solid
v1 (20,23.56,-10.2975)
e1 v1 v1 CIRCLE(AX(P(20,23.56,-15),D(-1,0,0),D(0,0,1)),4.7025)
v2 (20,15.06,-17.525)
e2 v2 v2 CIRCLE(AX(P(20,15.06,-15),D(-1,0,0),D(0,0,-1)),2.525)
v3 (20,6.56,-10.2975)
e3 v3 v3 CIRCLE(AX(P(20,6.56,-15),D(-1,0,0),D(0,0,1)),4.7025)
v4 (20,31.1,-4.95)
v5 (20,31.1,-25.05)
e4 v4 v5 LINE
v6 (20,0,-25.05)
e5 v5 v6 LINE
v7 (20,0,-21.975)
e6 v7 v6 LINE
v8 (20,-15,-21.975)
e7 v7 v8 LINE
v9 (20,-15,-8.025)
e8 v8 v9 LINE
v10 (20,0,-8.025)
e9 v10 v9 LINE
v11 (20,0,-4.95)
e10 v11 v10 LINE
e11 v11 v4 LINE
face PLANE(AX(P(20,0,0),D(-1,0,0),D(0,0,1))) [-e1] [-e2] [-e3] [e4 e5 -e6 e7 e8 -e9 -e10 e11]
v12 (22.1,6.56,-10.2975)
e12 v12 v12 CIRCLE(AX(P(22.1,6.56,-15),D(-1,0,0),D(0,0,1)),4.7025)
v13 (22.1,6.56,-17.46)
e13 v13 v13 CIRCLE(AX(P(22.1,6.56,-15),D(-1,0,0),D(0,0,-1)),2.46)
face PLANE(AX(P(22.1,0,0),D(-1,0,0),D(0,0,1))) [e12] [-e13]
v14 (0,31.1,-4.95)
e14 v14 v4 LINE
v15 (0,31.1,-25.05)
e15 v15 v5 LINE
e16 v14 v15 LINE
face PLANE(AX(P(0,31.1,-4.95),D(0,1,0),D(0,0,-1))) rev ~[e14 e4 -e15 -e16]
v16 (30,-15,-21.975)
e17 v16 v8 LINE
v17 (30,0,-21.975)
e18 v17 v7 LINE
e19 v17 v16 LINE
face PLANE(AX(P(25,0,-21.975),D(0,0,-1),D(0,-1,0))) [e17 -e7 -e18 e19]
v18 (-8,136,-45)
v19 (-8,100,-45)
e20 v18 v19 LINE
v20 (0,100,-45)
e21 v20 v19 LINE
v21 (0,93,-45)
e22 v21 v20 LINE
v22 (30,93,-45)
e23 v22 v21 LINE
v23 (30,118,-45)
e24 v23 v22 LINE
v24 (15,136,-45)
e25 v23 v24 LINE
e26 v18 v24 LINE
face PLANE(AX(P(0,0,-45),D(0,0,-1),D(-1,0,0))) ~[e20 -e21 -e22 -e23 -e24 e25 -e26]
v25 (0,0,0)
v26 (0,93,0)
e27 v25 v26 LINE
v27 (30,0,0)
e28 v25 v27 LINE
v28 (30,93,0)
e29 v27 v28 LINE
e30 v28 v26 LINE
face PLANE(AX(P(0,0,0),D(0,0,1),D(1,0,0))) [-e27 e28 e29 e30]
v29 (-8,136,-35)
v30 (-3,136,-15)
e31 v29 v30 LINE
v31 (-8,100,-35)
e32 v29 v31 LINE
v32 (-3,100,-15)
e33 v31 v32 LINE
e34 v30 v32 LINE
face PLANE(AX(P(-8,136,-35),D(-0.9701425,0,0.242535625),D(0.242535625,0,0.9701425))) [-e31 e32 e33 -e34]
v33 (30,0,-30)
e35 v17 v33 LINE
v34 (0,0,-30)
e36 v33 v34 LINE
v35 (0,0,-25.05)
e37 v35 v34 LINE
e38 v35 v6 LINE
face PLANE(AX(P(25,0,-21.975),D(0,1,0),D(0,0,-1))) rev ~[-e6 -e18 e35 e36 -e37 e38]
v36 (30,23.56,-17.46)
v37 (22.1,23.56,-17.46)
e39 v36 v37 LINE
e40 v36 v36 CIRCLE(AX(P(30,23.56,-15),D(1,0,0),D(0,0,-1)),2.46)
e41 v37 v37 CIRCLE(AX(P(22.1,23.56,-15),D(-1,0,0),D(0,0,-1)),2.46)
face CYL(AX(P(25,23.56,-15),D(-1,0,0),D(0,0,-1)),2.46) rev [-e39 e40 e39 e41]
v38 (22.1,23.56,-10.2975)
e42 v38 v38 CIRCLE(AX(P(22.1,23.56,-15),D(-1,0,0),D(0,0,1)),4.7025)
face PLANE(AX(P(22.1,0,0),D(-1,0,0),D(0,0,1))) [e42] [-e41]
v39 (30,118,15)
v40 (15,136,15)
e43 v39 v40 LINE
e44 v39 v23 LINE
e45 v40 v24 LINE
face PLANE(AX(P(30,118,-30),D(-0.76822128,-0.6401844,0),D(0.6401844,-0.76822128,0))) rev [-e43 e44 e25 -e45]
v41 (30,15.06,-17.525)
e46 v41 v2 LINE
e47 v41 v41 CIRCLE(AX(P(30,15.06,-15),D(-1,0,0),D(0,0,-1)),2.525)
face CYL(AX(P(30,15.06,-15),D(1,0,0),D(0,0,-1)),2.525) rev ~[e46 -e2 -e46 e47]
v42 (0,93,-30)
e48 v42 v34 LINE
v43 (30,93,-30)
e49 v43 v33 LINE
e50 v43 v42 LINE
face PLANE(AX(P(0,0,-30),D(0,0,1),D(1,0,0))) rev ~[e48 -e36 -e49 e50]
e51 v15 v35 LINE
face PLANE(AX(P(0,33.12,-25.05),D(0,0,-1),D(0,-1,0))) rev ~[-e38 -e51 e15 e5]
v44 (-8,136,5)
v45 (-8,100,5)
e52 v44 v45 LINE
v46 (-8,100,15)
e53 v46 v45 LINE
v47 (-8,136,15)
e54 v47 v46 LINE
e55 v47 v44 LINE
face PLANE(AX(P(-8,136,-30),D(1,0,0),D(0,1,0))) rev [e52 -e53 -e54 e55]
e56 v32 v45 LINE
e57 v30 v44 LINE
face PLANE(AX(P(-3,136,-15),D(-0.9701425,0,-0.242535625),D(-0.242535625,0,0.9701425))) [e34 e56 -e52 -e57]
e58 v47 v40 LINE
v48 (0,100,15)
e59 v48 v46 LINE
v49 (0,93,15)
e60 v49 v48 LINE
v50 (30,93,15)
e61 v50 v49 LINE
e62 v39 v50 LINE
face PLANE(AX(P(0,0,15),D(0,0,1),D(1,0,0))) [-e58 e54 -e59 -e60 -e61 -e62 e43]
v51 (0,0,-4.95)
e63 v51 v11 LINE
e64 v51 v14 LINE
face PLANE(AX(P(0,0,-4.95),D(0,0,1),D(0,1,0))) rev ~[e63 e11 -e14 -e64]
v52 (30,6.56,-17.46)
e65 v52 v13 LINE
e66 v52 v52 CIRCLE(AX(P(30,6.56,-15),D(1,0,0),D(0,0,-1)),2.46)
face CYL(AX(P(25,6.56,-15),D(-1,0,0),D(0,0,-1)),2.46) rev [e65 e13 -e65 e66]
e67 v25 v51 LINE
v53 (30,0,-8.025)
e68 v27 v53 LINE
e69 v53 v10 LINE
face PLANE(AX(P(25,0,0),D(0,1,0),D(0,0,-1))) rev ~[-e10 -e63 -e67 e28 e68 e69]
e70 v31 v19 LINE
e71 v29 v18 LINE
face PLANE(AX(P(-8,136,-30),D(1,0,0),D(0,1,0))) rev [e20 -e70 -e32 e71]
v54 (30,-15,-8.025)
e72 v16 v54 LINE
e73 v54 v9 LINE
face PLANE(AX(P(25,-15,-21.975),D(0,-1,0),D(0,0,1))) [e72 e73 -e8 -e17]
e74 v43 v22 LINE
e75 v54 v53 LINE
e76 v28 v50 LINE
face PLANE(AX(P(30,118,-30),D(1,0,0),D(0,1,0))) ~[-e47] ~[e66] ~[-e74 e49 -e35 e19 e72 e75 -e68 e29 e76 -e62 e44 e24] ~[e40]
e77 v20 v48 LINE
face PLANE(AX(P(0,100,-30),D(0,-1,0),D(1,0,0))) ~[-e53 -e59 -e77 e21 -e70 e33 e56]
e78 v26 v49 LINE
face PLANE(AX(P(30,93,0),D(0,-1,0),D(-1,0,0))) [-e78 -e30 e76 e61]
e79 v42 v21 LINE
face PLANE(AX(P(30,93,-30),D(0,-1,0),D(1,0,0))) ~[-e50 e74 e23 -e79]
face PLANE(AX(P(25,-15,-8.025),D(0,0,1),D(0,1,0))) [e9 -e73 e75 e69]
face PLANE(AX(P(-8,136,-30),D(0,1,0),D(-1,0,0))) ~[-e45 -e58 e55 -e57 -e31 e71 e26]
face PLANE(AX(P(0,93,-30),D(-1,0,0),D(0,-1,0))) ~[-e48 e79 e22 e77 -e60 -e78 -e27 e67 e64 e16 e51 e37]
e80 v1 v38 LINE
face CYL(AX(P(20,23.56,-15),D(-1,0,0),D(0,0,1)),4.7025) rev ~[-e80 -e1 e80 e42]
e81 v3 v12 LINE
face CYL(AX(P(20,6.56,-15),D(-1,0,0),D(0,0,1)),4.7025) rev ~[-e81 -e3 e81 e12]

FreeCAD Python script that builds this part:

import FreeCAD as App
import Part
import Sketcher

V = App.Vector


def add_polygon(sketch, points):
    """Adds a closed chain of lines whose ends are joined by coincident constraints."""
    first, n = sketch.GeometryCount, len(points)
    for a, b in zip(points, points[1:] + points[:1]):
        sketch.addGeometry(Part.LineSegment(App.Vector(*a, 0), App.Vector(*b, 0)), False)
    for i in range(n):
        sketch.addConstraint(Sketcher.Constraint("Coincident", first + i, 2, first + (i + 1) % n, 1))

doc = App.newDocument("Part")
body = doc.addObject("PartDesign::Body", "Body")

# Sketch on XY plane
sketch1 = body.newObject("Sketcher::SketchObject", "Sketch")
sketch1.AttachmentSupport = (doc.getObject("XY_Plane"), [""])
sketch1.MapMode = "FlatFace"
add_polygon(sketch1, [(0, 40), (0, 0), (25, 0), (25, 40)])  # lines 0-3
sketch1.addConstraint([
    Sketcher.Constraint("Vertical", 0),
    Sketcher.Constraint("Horizontal", 1),
    Sketcher.Constraint("Vertical", 2),
    Sketcher.Constraint("Horizontal", 3),
    Sketcher.Constraint("Coincident", 0, 2, -1, 1),
    Sketcher.Constraint("DistanceX", 1, 1, 1, 2, 25.0),
    Sketcher.Constraint("DistanceY", 0, 2, 0, 1, 40.0),
])
pad1 = body.newObject("PartDesign::Pad", "Pad")
pad1.Profile = sketch1
pad1.Length = 30
pad1.Reversed = True

# Sketch on YZ plane
sketch2 = body.newObject("Sketcher::SketchObject", "Sketch001")
sketch2.AttachmentSupport = (doc.getObject("YZ_Plane"), [""])
sketch2.MapMode = "FlatFace"
sketch2.AttachmentOffset = App.Placement(V(0, 0, 25), App.Rotation())
sketch2.addGeometry(Part.Circle(V(6.56, -15, 0), V(0, 0, 1), 2.46), False)
sketch2.addConstraint([
    Sketcher.Constraint("Diameter", 0, 4.92),
    Sketcher.Constraint("DistanceY", 0, 3, -1, 1, 15.0),
    Sketcher.Constraint("DistanceX", -1, 1, 0, 3, 6.56),
])
pocket1 = body.newObject("PartDesign::Pocket", "Pocket")
pocket1.Profile = sketch2
pocket1.Length = 30

# Sketch on YZ plane
sketch3 = body.newObject("Sketcher::SketchObject", "Sketch002")
sketch3.AttachmentSupport = (doc.getObject("YZ_Plane"), [""])
sketch3.MapMode = "FlatFace"
add_polygon(sketch3, [(0, -25.05), (0, -4.95), (33.12, -4.95), (33.12, -25.05)])  # lines 0-3
sketch3.addConstraint([
    Sketcher.Constraint("Vertical", 0),
    Sketcher.Constraint("Horizontal", 1),
    Sketcher.Constraint("Vertical", 2),
    Sketcher.Constraint("Horizontal", 3),
    Sketcher.Constraint("PointOnObject", 0, 2, -2),
    Sketcher.Constraint("DistanceY", 0, 1, 0, 2, 20.1),
    Sketcher.Constraint("DistanceX", 1, 1, 1, 2, 33.12),
    Sketcher.Constraint("DistanceY", 0, 2, -1, 1, 4.95),
])
pocket2 = body.newObject("PartDesign::Pocket", "Pocket001")
pocket2.Profile = sketch3
pocket2.Length = 20
pocket2.Reversed = True

# Sketch on XZ plane
sketch4 = body.newObject("Sketcher::SketchObject", "Sketch003")
sketch4.AttachmentSupport = (doc.getObject("XZ_Plane"), [""])
sketch4.MapMode = "FlatFace"
add_polygon(sketch4, [(25, -8.025), (20, -8.025), (20, -21.975), (25, -21.975)])  # lines 0-3
sketch4.addConstraint([
    Sketcher.Constraint("Horizontal", 0),
    Sketcher.Constraint("Vertical", 1),
    Sketcher.Constraint("Horizontal", 2),
    Sketcher.Constraint("Vertical", 3),
    Sketcher.Constraint("DistanceY", 1, 2, 1, 1, 13.95),
    Sketcher.Constraint("DistanceX", 0, 2, 0, 1, 5.0),
    Sketcher.Constraint("DistanceX", -1, 1, 0, 2, 20.0),
    Sketcher.Constraint("DistanceY", 0, 2, -1, 1, 8.025),
])
pad2 = body.newObject("PartDesign::Pad", "Pad001")
pad2.Profile = sketch4
pad2.Length = 15

# Sketch on YZ plane
sketch5 = body.newObject("Sketcher::SketchObject", "Sketch004")
sketch5.AttachmentSupport = (doc.getObject("YZ_Plane"), [""])
sketch5.MapMode = "FlatFace"
sketch5.AttachmentOffset = App.Placement(V(0, 0, 20), App.Rotation())
sketch5.addGeometry([
    Part.Circle(V(6.56, -15, 0), V(0, 0, 1), 4.7025),
    Part.Circle(V(6.56, -15, 0), V(0, 0, 1), 2.46),
], False)
sketch5.addConstraint([
    Sketcher.Constraint("Coincident", 1, 3, 0, 3),
    Sketcher.Constraint("Diameter", 0, 9.405),
    Sketcher.Constraint("Diameter", 1, 4.92),
    Sketcher.Constraint("DistanceY", 0, 3, -1, 1, 15.0),
    Sketcher.Constraint("DistanceX", -1, 1, 0, 3, 6.56),
])
pocket3 = body.newObject("PartDesign::Pocket", "Pocket002")
pocket3.Profile = sketch5
pocket3.Length = 2.1
pocket3.Reversed = True

# Sketch on YZ plane
sketch6 = body.newObject("Sketcher::SketchObject", "Sketch005")
sketch6.AttachmentSupport = (doc.getObject("YZ_Plane"), [""])
sketch6.MapMode = "FlatFace"
sketch6.AttachmentOffset = App.Placement(V(0, 0, 25), App.Rotation())
sketch6.addGeometry(Part.Circle(V(23.56, -15, 0), V(0, 0, 1), 2.46), False)
sketch6.addConstraint([
    Sketcher.Constraint("Diameter", 0, 4.92),
    Sketcher.Constraint("DistanceY", 0, 3, -1, 1, 15.0),
    Sketcher.Constraint("DistanceX", -1, 1, 0, 3, 23.56),
])
pocket4 = body.newObject("PartDesign::Pocket", "Pocket003")
pocket4.Profile = sketch6
pocket4.Length = 10

# Sketch on YZ plane
sketch7 = body.newObject("Sketcher::SketchObject", "Sketch006")
sketch7.AttachmentSupport = (doc.getObject("YZ_Plane"), [""])
sketch7.MapMode = "FlatFace"
sketch7.AttachmentOffset = App.Placement(V(0, 0, 20), App.Rotation())
sketch7.addGeometry([
    Part.Circle(V(23.56, -15, 0), V(0, 0, 1), 4.7025),
    Part.Circle(V(23.56, -15, 0), V(0, 0, 1), 2.46),
], False)
sketch7.addConstraint([
    Sketcher.Constraint("Coincident", 1, 3, 0, 3),
    Sketcher.Constraint("Diameter", 0, 9.405),
    Sketcher.Constraint("Diameter", 1, 4.92),
    Sketcher.Constraint("DistanceY", 0, 3, -1, 1, 15.0),
    Sketcher.Constraint("DistanceX", -1, 1, 0, 3, 23.56),
])
pocket5 = body.newObject("PartDesign::Pocket", "Pocket004")
pocket5.Profile = sketch7
pocket5.Length = 2.1
pocket5.Reversed = True

# Sketch on YZ plane
sketch8 = body.newObject("Sketcher::SketchObject", "Sketch007")
sketch8.AttachmentSupport = (doc.getObject("YZ_Plane"), [""])
sketch8.MapMode = "FlatFace"
sketch8.AttachmentOffset = App.Placement(V(0, 0, 25), App.Rotation())
add_polygon(sketch8, [(0, -30), (40, -30), (40, 0), (0, 0), (0, -8.025), (-15, -8.025), (-15, -21.975), (0, -21.975)])  # lines 0-7
sketch8.addGeometry(Part.Circle(V(6.56, -15, 0), V(0, 0, 1), 2.46), False)  # 8
sketch8.addGeometry(Part.Circle(V(23.56, -15, 0), V(0, 0, 1), 2.46), False)  # 9
sketch8.addConstraint([
    Sketcher.Constraint("Horizontal", 0),
    Sketcher.Constraint("Vertical", 1),
    Sketcher.Constraint("Horizontal", 2),
    Sketcher.Constraint("Vertical", 3),
    Sketcher.Constraint("Horizontal", 4),
    Sketcher.Constraint("Vertical", 5),
    Sketcher.Constraint("Horizontal", 6),
    Sketcher.Constraint("Vertical", 7),
    Sketcher.Constraint("Coincident", 2, 2, -1, 1),
    Sketcher.Constraint("Equal", 8, 9),
    Sketcher.Constraint("PointOnObject", 6, 2, -2),
    Sketcher.Constraint("Horizontal", 8, 3, 9, 3),
    Sketcher.Constraint("Equal", 3, 7),
    Sketcher.Constraint("Diameter", 8, 4.92),
    Sketcher.Constraint("DistanceX", 0, 1, 0, 2, 40.0),
    Sketcher.Constraint("DistanceX", 4, 2, 4, 1, 15.0),
    Sketcher.Constraint("DistanceY", 1, 1, 1, 2, 30.0),
    Sketcher.Constraint("DistanceY", 8, 3, -1, 1, 15.0),
    Sketcher.Constraint("DistanceX", 8, 3, 9, 3, 17.0),
    Sketcher.Constraint("DistanceY", 5, 2, 5, 1, 13.95),
    Sketcher.Constraint("DistanceX", -1, 1, 8, 3, 6.56),
])
pad3 = body.newObject("PartDesign::Pad", "Pad002")
pad3.Profile = sketch8
pad3.Length = 5

# Sketch on XZ plane
sketch9 = body.newObject("Sketcher::SketchObject", "Sketch008")
sketch9.AttachmentSupport = (doc.getObject("XZ_Plane"), [""])
sketch9.MapMode = "FlatFace"
sketch9.AttachmentOffset = App.Placement(V(0, 0, -40), App.Rotation())
add_polygon(sketch9, [(30, -30), (0, -30), (0, 0), (30, 0)])  # lines 0-3
sketch9.addConstraint([
    Sketcher.Constraint("Horizontal", 0),
    Sketcher.Constraint("Vertical", 1),
    Sketcher.Constraint("Horizontal", 2),
    Sketcher.Constraint("Vertical", 3),
    Sketcher.Constraint("Coincident", 1, 2, -1, 1),
    Sketcher.Constraint("Equal", 2, 1),
    Sketcher.Constraint("DistanceX", 0, 2, 0, 1, 30.0),
])
pad4 = body.newObject("PartDesign::Pad", "Pad003")
pad4.Profile = sketch9
pad4.Length = 30
pad4.Reversed = True

# Sketch on YZ plane
sketch10 = body.newObject("Sketcher::SketchObject", "Sketch009")
sketch10.AttachmentSupport = (doc.getObject("YZ_Plane"), [""])
sketch10.MapMode = "FlatFace"
sketch10.AttachmentOffset = App.Placement(V(0, 0, 30), App.Rotation())
sketch10.addGeometry(Part.Circle(V(15.06, -15, 0), V(0, 0, 1), 2.525), False)
sketch10.addConstraint([
    Sketcher.Constraint("Diameter", 0, 5.05),
    Sketcher.Constraint("DistanceY", 0, 3, -1, 1, 15.0),
    Sketcher.Constraint("DistanceX", -1, 1, 0, 3, 15.06),
])
pocket6 = body.newObject("PartDesign::Pocket", "Pocket005")
pocket6.Profile = sketch10
pocket6.Length = 30

# Sketch on XY plane
sketch11 = body.newObject("Sketcher::SketchObject", "Sketch010")
sketch11.AttachmentSupport = (doc.getObject("XY_Plane"), [""])
sketch11.MapMode = "FlatFace"
add_polygon(sketch11, [(0, 70), (30, 70), (30, 118), (15, 136), (-8, 136), (-8, 100), (0, 100)])  # lines 0-6
sketch11.addConstraint([
    Sketcher.Constraint("Horizontal", 0),
    Sketcher.Constraint("Vertical", 1),
    Sketcher.Constraint("Horizontal", 3),
    Sketcher.Constraint("Vertical", 4),
    Sketcher.Constraint("Horizontal", 5),
    Sketcher.Constraint("Vertical", 6),
    Sketcher.Constraint("PointOnObject", 5, 2, -2),
    Sketcher.Constraint("Equal", 0, 6),
    Sketcher.Constraint("DistanceX", 0, 1, 0, 2, 30.0),
    Sketcher.Constraint("DistanceX", 3, 2, 3, 1, 23.0),
    Sketcher.Constraint("DistanceX", 5, 1, 5, 2, 8.0),
    Sketcher.Constraint("DistanceY", 1, 1, 1, 2, 48.0),
    Sketcher.Constraint("DistanceY", 4, 2, 4, 1, 36.0),
    Sketcher.Constraint("DistanceY", -1, 1, 0, 2, 70.0),
])
pad5 = body.newObject("PartDesign::Pad", "Pad004")
pad5.Profile = sketch11
pad5.Length = 30
pad5.Reversed = True

# Sketch on YZ plane
sketch12 = body.newObject("Sketcher::SketchObject", "Sketch011")
sketch12.AttachmentSupport = (doc.getObject("YZ_Plane"), [""])
sketch12.MapMode = "FlatFace"
add_polygon(sketch12, [(33.12, -4.95), (33.12, -25.05), (31.1, -25.05), (31.1, -4.95)])  # lines 0-3
sketch12.addConstraint([
    Sketcher.Constraint("Vertical", 0),
    Sketcher.Constraint("Horizontal", 1),
    Sketcher.Constraint("Vertical", 2),
    Sketcher.Constraint("Horizontal", 3),
    Sketcher.Constraint("DistanceX", 1, 2, 1, 1, 2.02),
    Sketcher.Constraint("DistanceY", 0, 2, 0, 1, 20.1),
    Sketcher.Constraint("DistanceX", -1, 1, 1, 2, 31.1),
    Sketcher.Constraint("DistanceY", 0, 2, -1, 1, 25.05),
])
pad6 = body.newObject("PartDesign::Pad", "Pad005")
pad6.Profile = sketch12
pad6.Length = 20

# Sketch on XY plane
sketch13 = body.newObject("Sketcher::SketchObject", "Sketch012")
sketch13.AttachmentSupport = (doc.getObject("XY_Plane"), [""])
sketch13.MapMode = "FlatFace"
add_polygon(sketch13, [(-8, 100), (0, 100), (0, 93), (30, 93), (30, 118), (15, 136), (-8, 136)])  # lines 0-6
sketch13.addConstraint([
    Sketcher.Constraint("Horizontal", 0),
    Sketcher.Constraint("Vertical", 1),
    Sketcher.Constraint("Horizontal", 2),
    Sketcher.Constraint("Vertical", 3),
    Sketcher.Constraint("Horizontal", 5),
    Sketcher.Constraint("Vertical", 6),
    Sketcher.Constraint("PointOnObject", 0, 2, -2),
    Sketcher.Constraint("DistanceY", 3, 1, 3, 2, 25.0),
    Sketcher.Constraint("DistanceX", 0, 1, 0, 2, 8.0),
    Sketcher.Constraint("DistanceX", 2, 1, 2, 2, 30.0),
    Sketcher.Constraint("DistanceX", 5, 2, 5, 1, 23.0),
    Sketcher.Constraint("DistanceY", 1, 2, 1, 1, 7.0),
    Sketcher.Constraint("DistanceY", 6, 2, 6, 1, 36.0),
    Sketcher.Constraint("DistanceY", -1, 1, 0, 2, 100.0),
])
pad7 = body.newObject("PartDesign::Pad", "Pad006")
pad7.Profile = sketch13
pad7.Length = 15
doc.recompute()

datumplane = body.newObject("PartDesign::Plane", "DatumPlane")
datumplane.AttachmentSupport = (doc.getObject("XY_Plane"), [""])
datumplane.MapMode = "FlatFace"
datumplane.AttachmentOffset = App.Placement(V(0, 0, -15), App.Rotation())
mirrored = body.newObject("PartDesign::Mirrored", "Mirrored")
mirrored.Originals = [pad7]
mirrored.MirrorPlane = (datumplane, [""])
body.Tip = mirrored

# Sketch on XZ plane
sketch14 = body.newObject("Sketcher::SketchObject", "Sketch013")
sketch14.AttachmentSupport = (doc.getObject("XZ_Plane"), [""])
sketch14.MapMode = "FlatFace"
sketch14.AttachmentOffset = App.Placement(V(0, 0, -136), App.Rotation())
add_polygon(sketch14, [(-3, -15), (-8, -35), (-8, 5)])  # lines 0-2
sketch14.addConstraint([
    Sketcher.Constraint("Vertical", 1),
    Sketcher.Constraint("Equal", 0, 2),
    Sketcher.Constraint("DistanceY", 1, 1, 1, 2, 40.0),
    Sketcher.Constraint("DistanceY", -1, 1, 1, 2, 5.0),
    Sketcher.Constraint("DistanceX", 0, 2, 2, 2, 5.0),
    Sketcher.Constraint("DistanceX", 0, 2, -1, 1, 8.0),
])
pocket7 = body.newObject("PartDesign::Pocket", "Pocket006")
pocket7.Profile = sketch14
pocket7.Type = "ThroughAll"
pocket7.Reversed = True

doc.recompute()
